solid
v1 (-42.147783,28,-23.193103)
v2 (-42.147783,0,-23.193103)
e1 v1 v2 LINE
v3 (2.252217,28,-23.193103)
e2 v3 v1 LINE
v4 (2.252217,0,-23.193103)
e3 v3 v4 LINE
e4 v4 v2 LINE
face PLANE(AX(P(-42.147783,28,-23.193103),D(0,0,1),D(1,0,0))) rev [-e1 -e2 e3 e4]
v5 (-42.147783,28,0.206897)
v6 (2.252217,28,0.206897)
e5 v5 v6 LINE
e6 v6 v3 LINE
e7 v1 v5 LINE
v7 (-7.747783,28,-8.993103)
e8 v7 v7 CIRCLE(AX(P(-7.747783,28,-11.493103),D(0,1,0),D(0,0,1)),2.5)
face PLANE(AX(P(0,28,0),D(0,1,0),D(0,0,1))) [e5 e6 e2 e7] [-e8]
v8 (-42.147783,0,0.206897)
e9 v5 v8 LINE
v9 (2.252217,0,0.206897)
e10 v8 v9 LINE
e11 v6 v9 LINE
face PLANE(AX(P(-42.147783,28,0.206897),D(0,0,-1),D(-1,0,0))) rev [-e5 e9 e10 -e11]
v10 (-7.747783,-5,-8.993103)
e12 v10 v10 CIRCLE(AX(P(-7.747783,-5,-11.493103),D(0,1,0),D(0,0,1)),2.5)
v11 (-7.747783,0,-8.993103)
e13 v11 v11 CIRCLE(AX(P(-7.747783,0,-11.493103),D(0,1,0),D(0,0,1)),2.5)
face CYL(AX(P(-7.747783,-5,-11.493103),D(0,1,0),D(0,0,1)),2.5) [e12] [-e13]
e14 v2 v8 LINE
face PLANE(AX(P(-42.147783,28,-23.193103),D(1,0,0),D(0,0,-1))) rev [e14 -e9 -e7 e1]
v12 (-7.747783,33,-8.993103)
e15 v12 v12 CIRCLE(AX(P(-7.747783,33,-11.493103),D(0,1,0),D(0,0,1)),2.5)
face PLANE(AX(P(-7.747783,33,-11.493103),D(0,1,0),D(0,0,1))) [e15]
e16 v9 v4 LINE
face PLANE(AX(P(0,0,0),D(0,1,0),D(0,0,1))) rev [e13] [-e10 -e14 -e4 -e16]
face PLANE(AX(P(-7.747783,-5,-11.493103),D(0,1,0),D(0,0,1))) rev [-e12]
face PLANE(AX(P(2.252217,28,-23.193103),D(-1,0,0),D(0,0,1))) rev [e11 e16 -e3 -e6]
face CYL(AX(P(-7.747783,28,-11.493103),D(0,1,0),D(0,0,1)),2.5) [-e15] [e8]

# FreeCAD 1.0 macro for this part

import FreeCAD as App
import Part
import Sketcher
Q = App.Units.Quantity


def add_polygon(sketch, points):
    """Adds a closed chain of lines whose ends are joined by coincident constraints."""
    first, n = sketch.GeometryCount, len(points)
    for a, b in zip(points, points[1:] + points[:1]):
        sketch.addGeometry(Part.LineSegment(App.Vector(*a, 0), App.Vector(*b, 0)), False)
    for i in range(n):
        sketch.addConstraint(Sketcher.Constraint("Coincident", first + i, 2, first + (i + 1) % n, 1))

doc = App.newDocument("Part")
body = doc.addObject("PartDesign::Body", "Body")

# Sketch on XZ plane
sketch1 = body.newObject("Sketcher::SketchObject", "Sketch")
sketch1.AttachmentSupport = (doc.getObject("XZ_Plane"), [""])
sketch1.MapMode = "FlatFace"
add_polygon(sketch1, [(-42, -23), (-42, 0), (2, 0), (2, -23)])  # lines 0-3
sketch1.addConstraint(Sketcher.Constraint("Vertical", 0))
sketch1.addConstraint(Sketcher.Constraint("Horizontal", 1))
sketch1.addConstraint(Sketcher.Constraint("Vertical", 2))
sketch1.addConstraint(Sketcher.Constraint("Horizontal", 3))
sketch1.addConstraint(Sketcher.Constraint("DistanceX", 1, 1, 1, 2, Q("44.4 mm")))
sketch1.addConstraint(Sketcher.Constraint("DistanceY", 0, 1, 0, 2, Q("23.4 mm")))
sketch1.addConstraint(Sketcher.Constraint("DistanceX", 0, 2, -1, 1, Q("42.147783 mm")))
sketch1.addConstraint(Sketcher.Constraint("DistanceY", -1, 1, 0, 2, Q("0.206897 mm")))
pad1 = body.newObject("PartDesign::Pad", "Pad")
pad1.Profile = sketch1
pad1.Length = 28
pad1.Reversed = True

# Sketch on XZ plane
sketch2 = body.newObject("Sketcher::SketchObject", "Sketch001")
sketch2.AttachmentSupport = (doc.getObject("XZ_Plane"), [""])
sketch2.MapMode = "FlatFace"
sketch2.addGeometry(Part.Circle(App.Vector(-7.7, -11.5, 0), App.Vector(0, 0, 1), 2.5), False)
sketch2.addConstraint(Sketcher.Constraint("Diameter", 0, Q("5 mm")))
sketch2.addConstraint(Sketcher.Constraint("DistanceX", 0, 3, -1, 1, Q("7.747783 mm")))
sketch2.addConstraint(Sketcher.Constraint("DistanceY", 0, 3, -1, 1, Q("11.493103 mm")))
pad2 = body.newObject("PartDesign::Pad", "Pad001")
pad2.Profile = sketch2
pad2.Length = 5
doc.recompute()

linearpattern = body.newObject("PartDesign::LinearPattern", "LinearPattern")
linearpattern.Originals = [pad2]
linearpattern.Direction = (doc.getObject("Y_Axis"), [""])
linearpattern.Mode = "offset"
linearpattern.Offset = 33
linearpattern.Occurrences = 2
body.Tip = linearpattern

doc.recompute()
